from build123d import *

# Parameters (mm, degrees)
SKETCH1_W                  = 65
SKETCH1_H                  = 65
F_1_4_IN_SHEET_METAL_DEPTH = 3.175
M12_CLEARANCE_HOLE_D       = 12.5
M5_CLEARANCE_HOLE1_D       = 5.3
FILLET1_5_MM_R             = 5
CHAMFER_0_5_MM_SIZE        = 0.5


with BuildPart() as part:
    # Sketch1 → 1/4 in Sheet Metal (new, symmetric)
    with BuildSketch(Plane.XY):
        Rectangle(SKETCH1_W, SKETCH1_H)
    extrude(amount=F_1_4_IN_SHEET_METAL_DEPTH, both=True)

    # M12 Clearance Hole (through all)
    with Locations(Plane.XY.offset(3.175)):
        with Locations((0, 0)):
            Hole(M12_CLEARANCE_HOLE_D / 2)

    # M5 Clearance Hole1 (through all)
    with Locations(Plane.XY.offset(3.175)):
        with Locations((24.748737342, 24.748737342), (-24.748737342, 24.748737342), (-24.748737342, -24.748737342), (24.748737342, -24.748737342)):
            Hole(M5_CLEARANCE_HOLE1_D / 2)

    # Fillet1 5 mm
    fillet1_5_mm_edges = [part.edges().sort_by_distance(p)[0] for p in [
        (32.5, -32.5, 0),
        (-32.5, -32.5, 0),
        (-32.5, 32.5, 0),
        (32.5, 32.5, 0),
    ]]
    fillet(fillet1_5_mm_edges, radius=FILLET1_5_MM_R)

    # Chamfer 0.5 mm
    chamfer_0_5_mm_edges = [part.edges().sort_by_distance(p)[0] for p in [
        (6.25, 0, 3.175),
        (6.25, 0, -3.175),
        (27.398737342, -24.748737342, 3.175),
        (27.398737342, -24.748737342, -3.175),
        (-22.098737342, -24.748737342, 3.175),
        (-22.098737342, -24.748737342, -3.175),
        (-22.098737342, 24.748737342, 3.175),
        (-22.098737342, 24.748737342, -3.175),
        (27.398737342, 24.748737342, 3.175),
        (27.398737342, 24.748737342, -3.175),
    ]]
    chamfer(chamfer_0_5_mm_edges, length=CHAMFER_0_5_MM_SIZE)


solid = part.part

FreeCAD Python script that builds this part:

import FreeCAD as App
import Part
import Sketcher
from FreeCAD import Vector


def edges_at(feature, points):
    """Names of the edges that pass closest to the given points."""
    edges = feature.Shape.Edges
    near = lambda p: min(range(len(edges)), key=lambda i: edges[i].distToShape(Part.Vertex(*p))[0])
    return sorted({f"Edge{near(p) + 1}" for p in points})

doc = App.newDocument("Part")
params = doc.addObject("Spreadsheet::Sheet", "Params")
for row, (alias, value) in enumerate([
    ("sketch1_width", "65 mm"),
    ("pad1_length", "6.35 mm"),
    ("sketch2_diameter", "12.5 mm"),
    ("hole_diameter", "12.5 mm"),
    ("sketch3_diameter", "5.3 mm"),
    ("hole2_diameter", "5.3 mm"),
    ("fillet_radius", "5 mm"),
    ("chamfer_size", "0.5 mm"),
], start=1):
    params.set(f"A{row}", alias)
    params.set(f"B{row}", "=" + value)
    params.setAlias(f"B{row}", alias)

body = doc.addObject("PartDesign::Body", "Body")

# Sketch on XY plane
sketch1 = doc.addObject("Sketcher::SketchObject", "Sketch")
body.addObject(sketch1)
sketch1.AttachmentSupport = (doc.XY_Plane, [""])
sketch1.MapMode = "FlatFace"
sketch1.addGeometry(Part.LineSegment(Vector(-32.5, 32.5, 0), Vector(-32.5, -32.5, 0)), False)
sketch1.addGeometry(Part.LineSegment(Vector(-32.5, -32.5, 0), Vector(32.5, -32.5, 0)), False)
sketch1.addGeometry(Part.LineSegment(Vector(32.5, -32.5, 0), Vector(32.5, 32.5, 0)), False)
sketch1.addGeometry(Part.LineSegment(Vector(32.5, 32.5, 0), Vector(-32.5, 32.5, 0)), False)
sketch1.addConstraint(Sketcher.Constraint("Coincident", 0, 2, 1, 1))
sketch1.addConstraint(Sketcher.Constraint("Coincident", 1, 2, 2, 1))
sketch1.addConstraint(Sketcher.Constraint("Coincident", 2, 2, 3, 1))
sketch1.addConstraint(Sketcher.Constraint("Coincident", 3, 2, 0, 1))
sketch1.addConstraint(Sketcher.Constraint("Vertical", 0))
sketch1.addConstraint(Sketcher.Constraint("Horizontal", 1))
sketch1.addConstraint(Sketcher.Constraint("Vertical", 2))
sketch1.addConstraint(Sketcher.Constraint("Horizontal", 3))
sketch1.addConstraint(Sketcher.Constraint("Symmetric", 0, 2, 2, 2, -1, 1))
sketch1.addConstraint(Sketcher.Constraint("Equal", 3, 0))
sketch1.addConstraint(Sketcher.Constraint("DistanceX", 1, 1, 1, 2, 65.0))
sketch1.setExpression("Constraints[10]", "Params.sketch1_width")
pad1 = doc.addObject("PartDesign::Pad", "Pad")
body.addObject(pad1)
pad1.Profile = sketch1
pad1.setExpression("Length", "Params.pad1_length")
pad1.Midplane = True

# Sketch on XY plane
sketch2 = doc.addObject("Sketcher::SketchObject", "Sketch001")
body.addObject(sketch2)
sketch2.AttachmentSupport = (doc.XY_Plane, [""])
sketch2.MapMode = "FlatFace"
sketch2.AttachmentOffset = App.Placement(Vector(0, 0, 3.175), App.Rotation())
sketch2.addGeometry(Part.Circle(Vector(0, 0, 0), Vector(0, 0, 1), 6.25), False)
sketch2.addConstraint(Sketcher.Constraint("Coincident", 0, 3, -1, 1))
sketch2.addConstraint(Sketcher.Constraint("Diameter", 0, 12.5))
sketch2.setExpression("Constraints[1]", "Params.sketch2_diameter")
doc.recompute()
hole = doc.addObject("PartDesign::Hole", "Hole")
body.addObject(hole)
hole.Profile = sketch2
hole.ThreadType = "None"
hole.setExpression("Diameter", "Params.hole_diameter")
hole.DepthType = "ThroughAll"

# Sketch on XY plane
sketch3 = doc.addObject("Sketcher::SketchObject", "Sketch002")
body.addObject(sketch3)
sketch3.AttachmentSupport = (doc.XY_Plane, [""])
sketch3.MapMode = "FlatFace"
sketch3.AttachmentOffset = App.Placement(Vector(0, 0, 3.175), App.Rotation())
sketch3.addGeometry(Part.Circle(Vector(24.748737, 24.748737, 0), Vector(0, 0, 1), 2.65), False)
sketch3.addGeometry(Part.Circle(Vector(-24.748737, 24.748737, 0), Vector(0, 0, 1), 2.65), False)
sketch3.addGeometry(Part.Circle(Vector(-24.748737, -24.748737, 0), Vector(0, 0, 1), 2.65), False)
sketch3.addGeometry(Part.Circle(Vector(24.748737, -24.748737, 0), Vector(0, 0, 1), 2.65), False)
sketch3.addConstraint(Sketcher.Constraint("Equal", 0, 1))
sketch3.addConstraint(Sketcher.Constraint("Equal", 1, 2))
sketch3.addConstraint(Sketcher.Constraint("Equal", 2, 3))
sketch3.addConstraint(Sketcher.Constraint("Symmetric", 0, 3, 2, 3, -1, 1))
sketch3.addConstraint(Sketcher.Constraint("Symmetric", 1, 3, 3, 3, -1, 1))
sketch3.addConstraint(Sketcher.Constraint("Symmetric", 0, 3, 1, 3, -2))
sketch3.addConstraint(Sketcher.Constraint("Diameter", 0, 5.3))
sketch3.addConstraint(Sketcher.Constraint("DistanceX", -1, 1, 0, 3, 24.748737))
sketch3.addConstraint(Sketcher.Constraint("DistanceY", -1, 1, 0, 3, 24.748737))
sketch3.setExpression("Constraints[6]", "Params.sketch3_diameter")
doc.recompute()
hole2 = doc.addObject("PartDesign::Hole", "Hole001")
body.addObject(hole2)
hole2.Profile = sketch3
hole2.ThreadType = "None"
hole2.setExpression("Diameter", "Params.hole2_diameter")
hole2.DepthType = "ThroughAll"
doc.recompute()

fillet = doc.addObject("PartDesign::Fillet", "Fillet")
body.addObject(fillet)
fillet.Base = (hole2, edges_at(hole2, [
    (32.5, -32.5, 0),
    (-32.5, -32.5, 0),
    (-32.5, 32.5, 0),
    (32.5, 32.5, 0),
]))
fillet.setExpression("Radius", "Params.fillet_radius")
doc.recompute()

chamfer = doc.addObject("PartDesign::Chamfer", "Chamfer")
body.addObject(chamfer)
chamfer.Base = (fillet, edges_at(fillet, [
    (6.25, 0, 3.175),
    (6.25, 0, -3.175),
    (27.399, -24.749, 3.175),
    (27.399, -24.749, -3.175),
    (-22.099, -24.749, 3.175),
    (-22.099, -24.749, -3.175),
    (-22.099, 24.749, 3.175),
    (-22.099, 24.749, -3.175),
    (27.399, 24.749, 3.175),
    (27.399, 24.749, -3.175),
]))
chamfer.setExpression("Size", "Params.chamfer_size")

doc.recompute()
